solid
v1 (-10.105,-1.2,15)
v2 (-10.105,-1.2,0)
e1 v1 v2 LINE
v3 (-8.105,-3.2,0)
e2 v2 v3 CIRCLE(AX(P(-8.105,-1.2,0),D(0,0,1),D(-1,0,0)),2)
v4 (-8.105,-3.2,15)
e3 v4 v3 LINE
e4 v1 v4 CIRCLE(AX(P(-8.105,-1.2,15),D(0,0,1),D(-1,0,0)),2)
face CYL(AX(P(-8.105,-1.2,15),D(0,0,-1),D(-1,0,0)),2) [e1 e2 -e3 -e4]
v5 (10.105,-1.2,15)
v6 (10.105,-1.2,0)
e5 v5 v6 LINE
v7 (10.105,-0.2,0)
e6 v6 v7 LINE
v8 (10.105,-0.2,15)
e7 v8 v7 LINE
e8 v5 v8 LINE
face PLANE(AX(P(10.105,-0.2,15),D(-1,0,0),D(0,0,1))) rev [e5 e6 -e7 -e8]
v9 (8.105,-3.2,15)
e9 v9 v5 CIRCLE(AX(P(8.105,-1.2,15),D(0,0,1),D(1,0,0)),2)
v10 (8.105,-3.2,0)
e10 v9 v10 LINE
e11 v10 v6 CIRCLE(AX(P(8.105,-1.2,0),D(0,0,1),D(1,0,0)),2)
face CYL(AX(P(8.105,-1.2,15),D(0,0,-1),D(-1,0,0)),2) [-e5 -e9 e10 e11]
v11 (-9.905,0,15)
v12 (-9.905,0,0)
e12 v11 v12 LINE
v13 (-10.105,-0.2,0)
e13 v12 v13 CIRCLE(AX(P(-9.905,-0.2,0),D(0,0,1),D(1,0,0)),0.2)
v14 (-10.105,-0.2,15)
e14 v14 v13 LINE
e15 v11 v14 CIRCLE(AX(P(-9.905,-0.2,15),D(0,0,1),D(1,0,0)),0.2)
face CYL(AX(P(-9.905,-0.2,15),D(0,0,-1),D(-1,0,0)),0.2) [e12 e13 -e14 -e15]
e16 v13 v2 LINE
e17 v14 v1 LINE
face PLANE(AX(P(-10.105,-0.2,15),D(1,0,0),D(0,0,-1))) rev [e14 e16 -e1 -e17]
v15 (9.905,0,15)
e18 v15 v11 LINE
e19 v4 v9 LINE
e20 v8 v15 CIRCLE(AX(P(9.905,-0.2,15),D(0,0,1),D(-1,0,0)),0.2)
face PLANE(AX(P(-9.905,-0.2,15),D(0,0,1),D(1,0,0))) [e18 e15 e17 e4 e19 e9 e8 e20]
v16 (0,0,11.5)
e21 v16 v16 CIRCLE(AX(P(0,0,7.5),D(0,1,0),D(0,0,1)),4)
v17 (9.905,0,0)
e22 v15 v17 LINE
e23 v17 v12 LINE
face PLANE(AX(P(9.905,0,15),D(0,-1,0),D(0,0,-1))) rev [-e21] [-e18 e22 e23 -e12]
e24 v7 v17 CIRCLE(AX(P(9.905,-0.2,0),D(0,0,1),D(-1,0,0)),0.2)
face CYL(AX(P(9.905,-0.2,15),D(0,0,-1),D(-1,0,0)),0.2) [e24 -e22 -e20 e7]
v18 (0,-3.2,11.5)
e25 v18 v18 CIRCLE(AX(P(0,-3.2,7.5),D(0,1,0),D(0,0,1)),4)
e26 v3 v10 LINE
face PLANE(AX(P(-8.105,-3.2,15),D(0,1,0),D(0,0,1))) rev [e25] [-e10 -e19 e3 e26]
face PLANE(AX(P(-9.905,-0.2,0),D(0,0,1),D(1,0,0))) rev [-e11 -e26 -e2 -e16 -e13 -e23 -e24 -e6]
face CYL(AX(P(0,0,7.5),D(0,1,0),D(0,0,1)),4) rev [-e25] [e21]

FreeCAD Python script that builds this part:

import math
import FreeCAD as App
import Part
import Sketcher

doc = App.newDocument("Part")
body = doc.addObject("PartDesign::Body", "Body")

sketch1 = body.newObject("Sketcher::SketchObject", "Sketch")
sketch1.AttachmentSupport = (doc.getObject("XY_Plane"), [""])
sketch1.MapMode = "FlatFace"
sketch1.addGeometry([
    Part.LineSegment(App.Vector(9.905, 0, 0), App.Vector(-9.905, 0, 0)),
    Part.ArcOfCircle(Part.Circle(App.Vector(-9.905, -0.2, 0), App.Vector(0, 0, 1), 0.2), math.radians(90), math.radians(180)),
    Part.LineSegment(App.Vector(-10.105, -0.2, 0), App.Vector(-10.105, -1.2, 0)),
    Part.ArcOfCircle(Part.Circle(App.Vector(-8.105, -1.2, 0), App.Vector(0, 0, 1), 2), math.radians(-180), math.radians(-90)),
    Part.LineSegment(App.Vector(-8.105, -3.2, 0), App.Vector(8.105, -3.2, 0)),
    Part.ArcOfCircle(Part.Circle(App.Vector(8.105, -1.2, 0), App.Vector(0, 0, 1), 2), math.radians(-90), math.radians(0)),
    Part.LineSegment(App.Vector(10.105, -1.2, 0), App.Vector(10.105, -0.2, 0)),
    Part.ArcOfCircle(Part.Circle(App.Vector(9.905, -0.2, 0), App.Vector(0, 0, 1), 0.2), math.radians(0), math.radians(90)),
], False)
sketch1.addConstraint([
    Sketcher.Constraint("Tangent", 0, 2, 1, 1),
    Sketcher.Constraint("Tangent", 1, 2, 2, 1),
    Sketcher.Constraint("Tangent", 2, 2, 3, 1),
    Sketcher.Constraint("Tangent", 3, 2, 4, 1),
    Sketcher.Constraint("Tangent", 4, 2, 5, 1),
    Sketcher.Constraint("Tangent", 5, 2, 6, 1),
    Sketcher.Constraint("Tangent", 6, 2, 7, 1),
    Sketcher.Constraint("Tangent", 7, 2, 0, 1),
    Sketcher.Constraint("Horizontal", 0),
    Sketcher.Constraint("Vertical", 2),
    Sketcher.Constraint("Horizontal", 4),
    Sketcher.Constraint("Vertical", 6),
    Sketcher.Constraint("Equal", 3, 5),
    Sketcher.Constraint("Equal", 1, 7),
    Sketcher.Constraint("Symmetric", 0, 2, 7, 2, -1, 1),
    Sketcher.Constraint("Radius", 3, 2.0),
    Sketcher.Constraint("Radius", 1, 0.2),
    Sketcher.Constraint("DistanceY", 2, 2, 2, 1, 1.0),
    Sketcher.Constraint("DistanceX", 0, 2, 0, 1, 19.81),
])
pad1 = body.newObject("PartDesign::Pad", "Pad")
pad1.Profile = sketch1
pad1.Length = 15

sketch2 = body.newObject("Sketcher::SketchObject", "Sketch001")
sketch2.AttachmentSupport = (doc.getObject("XZ_Plane"), [""])
sketch2.MapMode = "FlatFace"
sketch2.addGeometry(Part.Circle(App.Vector(0, 7.5, 0), App.Vector(0, 0, 1), 4), False)
sketch2.addConstraint([
    Sketcher.Constraint("PointOnObject", 0, 3, -2),
    Sketcher.Constraint("Diameter", 0, 8.0),
    Sketcher.Constraint("DistanceY", -1, 1, 0, 3, 7.5),
])
doc.recompute()
hole = body.newObject("PartDesign::Hole", "Hole")
hole.Profile = sketch2
hole.ThreadType = "None"
hole.Diameter = 8
hole.DepthType = "ThroughAll"
hole.Reversed = True

doc.recompute()
